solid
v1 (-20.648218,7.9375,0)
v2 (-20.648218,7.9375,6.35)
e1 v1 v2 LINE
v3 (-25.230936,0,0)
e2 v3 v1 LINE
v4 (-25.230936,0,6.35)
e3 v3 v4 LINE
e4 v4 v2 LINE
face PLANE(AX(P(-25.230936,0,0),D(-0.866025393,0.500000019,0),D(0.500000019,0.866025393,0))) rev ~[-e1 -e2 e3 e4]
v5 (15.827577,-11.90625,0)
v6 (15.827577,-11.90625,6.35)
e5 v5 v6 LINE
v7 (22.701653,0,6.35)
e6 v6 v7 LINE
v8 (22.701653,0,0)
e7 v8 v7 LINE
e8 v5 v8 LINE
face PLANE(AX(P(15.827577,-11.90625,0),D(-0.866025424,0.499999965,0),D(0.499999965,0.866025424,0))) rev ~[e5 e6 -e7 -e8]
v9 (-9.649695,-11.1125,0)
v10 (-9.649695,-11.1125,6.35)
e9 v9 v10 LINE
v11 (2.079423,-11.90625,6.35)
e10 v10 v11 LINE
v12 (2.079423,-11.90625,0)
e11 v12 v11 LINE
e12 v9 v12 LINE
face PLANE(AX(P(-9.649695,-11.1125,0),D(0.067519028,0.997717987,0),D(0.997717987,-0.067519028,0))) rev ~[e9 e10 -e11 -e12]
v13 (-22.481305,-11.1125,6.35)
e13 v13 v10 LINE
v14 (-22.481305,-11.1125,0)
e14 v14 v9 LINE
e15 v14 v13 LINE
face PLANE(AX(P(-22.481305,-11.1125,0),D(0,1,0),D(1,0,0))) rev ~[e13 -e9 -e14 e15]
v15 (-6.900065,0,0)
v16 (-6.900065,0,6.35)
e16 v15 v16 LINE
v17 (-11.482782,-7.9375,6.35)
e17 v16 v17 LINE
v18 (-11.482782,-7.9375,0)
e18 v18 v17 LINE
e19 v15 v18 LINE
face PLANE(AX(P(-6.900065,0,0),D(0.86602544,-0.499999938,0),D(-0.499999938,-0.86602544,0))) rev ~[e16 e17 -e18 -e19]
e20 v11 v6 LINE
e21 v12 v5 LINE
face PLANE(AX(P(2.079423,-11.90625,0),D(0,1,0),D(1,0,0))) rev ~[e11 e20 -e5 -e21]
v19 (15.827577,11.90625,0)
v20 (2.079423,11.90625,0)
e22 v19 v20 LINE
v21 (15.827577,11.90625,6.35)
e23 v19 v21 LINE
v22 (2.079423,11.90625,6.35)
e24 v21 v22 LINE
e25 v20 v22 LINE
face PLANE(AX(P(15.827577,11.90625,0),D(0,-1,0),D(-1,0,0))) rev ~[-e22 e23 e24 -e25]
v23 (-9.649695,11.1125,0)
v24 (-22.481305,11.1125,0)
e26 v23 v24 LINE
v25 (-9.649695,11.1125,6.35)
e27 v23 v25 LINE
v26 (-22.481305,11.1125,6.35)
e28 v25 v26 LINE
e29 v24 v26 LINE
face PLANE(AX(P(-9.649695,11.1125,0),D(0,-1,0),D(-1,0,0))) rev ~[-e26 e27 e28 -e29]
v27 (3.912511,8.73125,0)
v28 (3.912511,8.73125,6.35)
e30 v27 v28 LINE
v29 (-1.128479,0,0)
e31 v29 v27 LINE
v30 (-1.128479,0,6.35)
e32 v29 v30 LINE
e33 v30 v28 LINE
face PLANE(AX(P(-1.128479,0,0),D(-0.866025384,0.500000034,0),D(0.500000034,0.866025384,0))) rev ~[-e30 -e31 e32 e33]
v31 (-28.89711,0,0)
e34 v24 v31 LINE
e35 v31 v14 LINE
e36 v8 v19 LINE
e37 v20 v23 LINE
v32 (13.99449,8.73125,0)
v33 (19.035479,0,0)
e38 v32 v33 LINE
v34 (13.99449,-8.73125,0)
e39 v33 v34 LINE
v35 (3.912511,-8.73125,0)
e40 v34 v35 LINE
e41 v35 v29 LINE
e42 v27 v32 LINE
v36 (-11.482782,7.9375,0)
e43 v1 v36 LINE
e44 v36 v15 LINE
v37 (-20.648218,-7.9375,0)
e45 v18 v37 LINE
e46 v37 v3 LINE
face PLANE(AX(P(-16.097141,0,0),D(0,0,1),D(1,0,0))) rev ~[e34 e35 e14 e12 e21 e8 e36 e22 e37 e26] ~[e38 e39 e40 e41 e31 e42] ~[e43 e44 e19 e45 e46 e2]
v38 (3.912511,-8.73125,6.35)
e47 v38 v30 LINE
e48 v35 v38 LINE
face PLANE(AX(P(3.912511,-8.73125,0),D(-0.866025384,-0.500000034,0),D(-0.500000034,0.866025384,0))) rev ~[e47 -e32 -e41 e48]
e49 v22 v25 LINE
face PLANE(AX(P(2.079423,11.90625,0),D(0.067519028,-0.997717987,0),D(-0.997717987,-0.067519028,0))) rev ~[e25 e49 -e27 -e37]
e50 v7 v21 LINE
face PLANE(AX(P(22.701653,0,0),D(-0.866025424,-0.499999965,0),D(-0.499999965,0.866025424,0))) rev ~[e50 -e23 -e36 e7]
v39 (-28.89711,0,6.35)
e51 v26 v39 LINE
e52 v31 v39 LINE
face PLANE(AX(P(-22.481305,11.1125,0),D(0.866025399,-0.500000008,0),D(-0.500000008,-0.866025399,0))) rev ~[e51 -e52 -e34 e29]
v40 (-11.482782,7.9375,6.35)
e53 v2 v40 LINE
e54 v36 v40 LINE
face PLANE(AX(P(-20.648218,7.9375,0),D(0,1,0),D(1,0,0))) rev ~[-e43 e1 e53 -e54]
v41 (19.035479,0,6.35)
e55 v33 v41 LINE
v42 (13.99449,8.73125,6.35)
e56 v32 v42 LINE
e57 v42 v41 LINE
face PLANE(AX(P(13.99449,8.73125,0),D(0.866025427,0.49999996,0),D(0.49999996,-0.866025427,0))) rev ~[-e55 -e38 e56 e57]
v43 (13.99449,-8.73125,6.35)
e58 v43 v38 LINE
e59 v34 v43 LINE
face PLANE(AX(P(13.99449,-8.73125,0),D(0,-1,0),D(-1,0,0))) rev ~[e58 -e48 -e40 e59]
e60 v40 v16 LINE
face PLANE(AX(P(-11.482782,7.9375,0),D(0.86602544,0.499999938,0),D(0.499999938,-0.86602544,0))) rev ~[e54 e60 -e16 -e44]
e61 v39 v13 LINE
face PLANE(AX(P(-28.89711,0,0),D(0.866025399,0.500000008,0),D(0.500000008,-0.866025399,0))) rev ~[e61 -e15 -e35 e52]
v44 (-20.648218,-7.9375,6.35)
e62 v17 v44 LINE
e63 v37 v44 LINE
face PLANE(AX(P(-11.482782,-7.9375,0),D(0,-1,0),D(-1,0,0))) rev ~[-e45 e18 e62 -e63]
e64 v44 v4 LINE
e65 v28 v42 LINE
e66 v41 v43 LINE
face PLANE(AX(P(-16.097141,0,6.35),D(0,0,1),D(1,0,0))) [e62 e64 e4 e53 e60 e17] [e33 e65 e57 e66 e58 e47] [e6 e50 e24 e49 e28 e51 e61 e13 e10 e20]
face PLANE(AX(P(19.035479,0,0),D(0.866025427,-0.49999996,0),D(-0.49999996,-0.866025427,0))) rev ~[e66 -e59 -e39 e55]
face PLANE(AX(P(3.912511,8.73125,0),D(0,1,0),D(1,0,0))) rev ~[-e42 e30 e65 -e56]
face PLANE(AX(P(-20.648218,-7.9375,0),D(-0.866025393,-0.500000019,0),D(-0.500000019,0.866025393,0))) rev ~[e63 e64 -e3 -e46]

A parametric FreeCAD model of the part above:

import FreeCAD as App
import Part
import Sketcher
from FreeCAD import Vector
Q = App.Units.Quantity


def add_polygon(sketch, points):
    """Adds a closed chain of lines whose ends are joined by coincident constraints."""
    first, n = sketch.GeometryCount, len(points)
    for a, b in zip(points, points[1:] + points[:1]):
        sketch.addGeometry(Part.LineSegment(App.Vector(*a, 0), App.Vector(*b, 0)), False)
    for i in range(n):
        sketch.addConstraint(Sketcher.Constraint("Coincident", first + i, 2, first + (i + 1) % n, 1))

doc = App.newDocument("Part")
body = doc.addObject("PartDesign::Body", "Body")

# Sketch on XY plane
sketch1 = body.newObject("Sketcher::SketchObject", "Sketch")
sketch1.AttachmentSupport = (doc.getObject("XY_Plane"), [""])
sketch1.MapMode = "FlatFace"
add_polygon(sketch1, [(-22.481305, -11.1125), (-9.649695, -11.1125), (2.079423, -11.90625), (15.827577, -11.90625), (22.701653, 0), (15.827577, 11.90625), (2.079423, 11.90625), (-9.649695, 11.1125), (-22.481305, 11.1125), (-28.89711, 0)])  # lines 0-9
add_polygon(sketch1, [(-11.482782, 7.9375), (-6.900065, 0), (-11.482782, -7.9375), (-20.648218, -7.9375), (-25.230936, 0), (-20.648218, 7.9375)])  # lines 10-15
add_polygon(sketch1, [(13.99449, 8.73125), (19.035479, 0), (13.99449, -8.73125), (3.912511, -8.73125), (-1.128479, 0), (3.912511, 8.73125)])  # lines 16-21
sketch1.addConstraint([
    Sketcher.Constraint("Horizontal", 0),
    Sketcher.Constraint("Horizontal", 2),
    Sketcher.Constraint("Horizontal", 5),
    Sketcher.Constraint("Horizontal", 7),
    Sketcher.Constraint("Horizontal", 12),
    Sketcher.Constraint("Horizontal", 15),
    Sketcher.Constraint("Horizontal", 18),
    Sketcher.Constraint("Horizontal", 21),
    Sketcher.Constraint("Symmetric", 2, 2, 4, 2, -1),
    Sketcher.Constraint("Symmetric", 0, 2, 6, 2, -1),
    Sketcher.Constraint("Symmetric", 12, 2, 14, 2, -1),
    Sketcher.Constraint("Symmetric", 18, 2, 20, 2, -1),
    Sketcher.Constraint("PointOnObject", 3, 2, -1),
    Sketcher.Constraint("PointOnObject", 8, 2, -1),
    Sketcher.Constraint("PointOnObject", 10, 2, -1),
    Sketcher.Constraint("PointOnObject", 13, 2, -1),
    Sketcher.Constraint("PointOnObject", 16, 2, -1),
    Sketcher.Constraint("PointOnObject", 19, 2, -1),
    Sketcher.Constraint("Parallel", 3, 8),
    Sketcher.Constraint("Parallel", 4, 9),
    Sketcher.Constraint("Parallel", 9, 10),
    Sketcher.Constraint("Parallel", 8, 11),
    Sketcher.Constraint("Parallel", 10, 13),
    Sketcher.Constraint("Parallel", 13, 16),
    Sketcher.Constraint("Parallel", 14, 17),
    Sketcher.Constraint("Parallel", 16, 19),
    Sketcher.Constraint("Vertical", 1, 2, 5, 2),
    Sketcher.Constraint("Angle", 3, Q("60.000002 deg")),
    Sketcher.Constraint("DistanceY", 11, 2, 6, 2, Q("0.75 in")),
    Sketcher.Constraint("DistanceY", 0, 2, -1, 1, Q("0.4375 in")),
    Sketcher.Constraint("DistanceY", 1, 2, -1, 1, Q("0.46875 in")),
    Sketcher.Constraint("DistanceY", 17, 2, -1, 1, Q("0.34375 in")),
    Sketcher.Constraint("DistanceX", 0, 1, 0, 2, Q("12.83161 mm")),
    Sketcher.Constraint("DistanceX", 18, 2, 18, 1, Q("10.081979 mm")),
    Sketcher.Constraint("DistanceX", 2, 2, 16, 2, Q("3.207902 mm")),
    Sketcher.Constraint("DistanceX", 19, 2, 1, 2, Q("3.207902 mm")),
    Sketcher.Constraint("DistanceX", 12, 2, 12, 1, Q("9.165436 mm")),
    Sketcher.Constraint("DistanceX", 8, 2, -1, 1, Q("28.89711 mm")),
    Sketcher.Constraint("DistanceX", 12, 2, -1, 1, Q("20.648218 mm")),
    Sketcher.Constraint("DistanceX", -1, 1, 16, 2, Q("19.035479 mm")),
])
pad1 = body.newObject("PartDesign::Pad", "Pad")
pad1.Profile = sketch1
pad1.Length = Q("0.25 in")

doc.recompute()
